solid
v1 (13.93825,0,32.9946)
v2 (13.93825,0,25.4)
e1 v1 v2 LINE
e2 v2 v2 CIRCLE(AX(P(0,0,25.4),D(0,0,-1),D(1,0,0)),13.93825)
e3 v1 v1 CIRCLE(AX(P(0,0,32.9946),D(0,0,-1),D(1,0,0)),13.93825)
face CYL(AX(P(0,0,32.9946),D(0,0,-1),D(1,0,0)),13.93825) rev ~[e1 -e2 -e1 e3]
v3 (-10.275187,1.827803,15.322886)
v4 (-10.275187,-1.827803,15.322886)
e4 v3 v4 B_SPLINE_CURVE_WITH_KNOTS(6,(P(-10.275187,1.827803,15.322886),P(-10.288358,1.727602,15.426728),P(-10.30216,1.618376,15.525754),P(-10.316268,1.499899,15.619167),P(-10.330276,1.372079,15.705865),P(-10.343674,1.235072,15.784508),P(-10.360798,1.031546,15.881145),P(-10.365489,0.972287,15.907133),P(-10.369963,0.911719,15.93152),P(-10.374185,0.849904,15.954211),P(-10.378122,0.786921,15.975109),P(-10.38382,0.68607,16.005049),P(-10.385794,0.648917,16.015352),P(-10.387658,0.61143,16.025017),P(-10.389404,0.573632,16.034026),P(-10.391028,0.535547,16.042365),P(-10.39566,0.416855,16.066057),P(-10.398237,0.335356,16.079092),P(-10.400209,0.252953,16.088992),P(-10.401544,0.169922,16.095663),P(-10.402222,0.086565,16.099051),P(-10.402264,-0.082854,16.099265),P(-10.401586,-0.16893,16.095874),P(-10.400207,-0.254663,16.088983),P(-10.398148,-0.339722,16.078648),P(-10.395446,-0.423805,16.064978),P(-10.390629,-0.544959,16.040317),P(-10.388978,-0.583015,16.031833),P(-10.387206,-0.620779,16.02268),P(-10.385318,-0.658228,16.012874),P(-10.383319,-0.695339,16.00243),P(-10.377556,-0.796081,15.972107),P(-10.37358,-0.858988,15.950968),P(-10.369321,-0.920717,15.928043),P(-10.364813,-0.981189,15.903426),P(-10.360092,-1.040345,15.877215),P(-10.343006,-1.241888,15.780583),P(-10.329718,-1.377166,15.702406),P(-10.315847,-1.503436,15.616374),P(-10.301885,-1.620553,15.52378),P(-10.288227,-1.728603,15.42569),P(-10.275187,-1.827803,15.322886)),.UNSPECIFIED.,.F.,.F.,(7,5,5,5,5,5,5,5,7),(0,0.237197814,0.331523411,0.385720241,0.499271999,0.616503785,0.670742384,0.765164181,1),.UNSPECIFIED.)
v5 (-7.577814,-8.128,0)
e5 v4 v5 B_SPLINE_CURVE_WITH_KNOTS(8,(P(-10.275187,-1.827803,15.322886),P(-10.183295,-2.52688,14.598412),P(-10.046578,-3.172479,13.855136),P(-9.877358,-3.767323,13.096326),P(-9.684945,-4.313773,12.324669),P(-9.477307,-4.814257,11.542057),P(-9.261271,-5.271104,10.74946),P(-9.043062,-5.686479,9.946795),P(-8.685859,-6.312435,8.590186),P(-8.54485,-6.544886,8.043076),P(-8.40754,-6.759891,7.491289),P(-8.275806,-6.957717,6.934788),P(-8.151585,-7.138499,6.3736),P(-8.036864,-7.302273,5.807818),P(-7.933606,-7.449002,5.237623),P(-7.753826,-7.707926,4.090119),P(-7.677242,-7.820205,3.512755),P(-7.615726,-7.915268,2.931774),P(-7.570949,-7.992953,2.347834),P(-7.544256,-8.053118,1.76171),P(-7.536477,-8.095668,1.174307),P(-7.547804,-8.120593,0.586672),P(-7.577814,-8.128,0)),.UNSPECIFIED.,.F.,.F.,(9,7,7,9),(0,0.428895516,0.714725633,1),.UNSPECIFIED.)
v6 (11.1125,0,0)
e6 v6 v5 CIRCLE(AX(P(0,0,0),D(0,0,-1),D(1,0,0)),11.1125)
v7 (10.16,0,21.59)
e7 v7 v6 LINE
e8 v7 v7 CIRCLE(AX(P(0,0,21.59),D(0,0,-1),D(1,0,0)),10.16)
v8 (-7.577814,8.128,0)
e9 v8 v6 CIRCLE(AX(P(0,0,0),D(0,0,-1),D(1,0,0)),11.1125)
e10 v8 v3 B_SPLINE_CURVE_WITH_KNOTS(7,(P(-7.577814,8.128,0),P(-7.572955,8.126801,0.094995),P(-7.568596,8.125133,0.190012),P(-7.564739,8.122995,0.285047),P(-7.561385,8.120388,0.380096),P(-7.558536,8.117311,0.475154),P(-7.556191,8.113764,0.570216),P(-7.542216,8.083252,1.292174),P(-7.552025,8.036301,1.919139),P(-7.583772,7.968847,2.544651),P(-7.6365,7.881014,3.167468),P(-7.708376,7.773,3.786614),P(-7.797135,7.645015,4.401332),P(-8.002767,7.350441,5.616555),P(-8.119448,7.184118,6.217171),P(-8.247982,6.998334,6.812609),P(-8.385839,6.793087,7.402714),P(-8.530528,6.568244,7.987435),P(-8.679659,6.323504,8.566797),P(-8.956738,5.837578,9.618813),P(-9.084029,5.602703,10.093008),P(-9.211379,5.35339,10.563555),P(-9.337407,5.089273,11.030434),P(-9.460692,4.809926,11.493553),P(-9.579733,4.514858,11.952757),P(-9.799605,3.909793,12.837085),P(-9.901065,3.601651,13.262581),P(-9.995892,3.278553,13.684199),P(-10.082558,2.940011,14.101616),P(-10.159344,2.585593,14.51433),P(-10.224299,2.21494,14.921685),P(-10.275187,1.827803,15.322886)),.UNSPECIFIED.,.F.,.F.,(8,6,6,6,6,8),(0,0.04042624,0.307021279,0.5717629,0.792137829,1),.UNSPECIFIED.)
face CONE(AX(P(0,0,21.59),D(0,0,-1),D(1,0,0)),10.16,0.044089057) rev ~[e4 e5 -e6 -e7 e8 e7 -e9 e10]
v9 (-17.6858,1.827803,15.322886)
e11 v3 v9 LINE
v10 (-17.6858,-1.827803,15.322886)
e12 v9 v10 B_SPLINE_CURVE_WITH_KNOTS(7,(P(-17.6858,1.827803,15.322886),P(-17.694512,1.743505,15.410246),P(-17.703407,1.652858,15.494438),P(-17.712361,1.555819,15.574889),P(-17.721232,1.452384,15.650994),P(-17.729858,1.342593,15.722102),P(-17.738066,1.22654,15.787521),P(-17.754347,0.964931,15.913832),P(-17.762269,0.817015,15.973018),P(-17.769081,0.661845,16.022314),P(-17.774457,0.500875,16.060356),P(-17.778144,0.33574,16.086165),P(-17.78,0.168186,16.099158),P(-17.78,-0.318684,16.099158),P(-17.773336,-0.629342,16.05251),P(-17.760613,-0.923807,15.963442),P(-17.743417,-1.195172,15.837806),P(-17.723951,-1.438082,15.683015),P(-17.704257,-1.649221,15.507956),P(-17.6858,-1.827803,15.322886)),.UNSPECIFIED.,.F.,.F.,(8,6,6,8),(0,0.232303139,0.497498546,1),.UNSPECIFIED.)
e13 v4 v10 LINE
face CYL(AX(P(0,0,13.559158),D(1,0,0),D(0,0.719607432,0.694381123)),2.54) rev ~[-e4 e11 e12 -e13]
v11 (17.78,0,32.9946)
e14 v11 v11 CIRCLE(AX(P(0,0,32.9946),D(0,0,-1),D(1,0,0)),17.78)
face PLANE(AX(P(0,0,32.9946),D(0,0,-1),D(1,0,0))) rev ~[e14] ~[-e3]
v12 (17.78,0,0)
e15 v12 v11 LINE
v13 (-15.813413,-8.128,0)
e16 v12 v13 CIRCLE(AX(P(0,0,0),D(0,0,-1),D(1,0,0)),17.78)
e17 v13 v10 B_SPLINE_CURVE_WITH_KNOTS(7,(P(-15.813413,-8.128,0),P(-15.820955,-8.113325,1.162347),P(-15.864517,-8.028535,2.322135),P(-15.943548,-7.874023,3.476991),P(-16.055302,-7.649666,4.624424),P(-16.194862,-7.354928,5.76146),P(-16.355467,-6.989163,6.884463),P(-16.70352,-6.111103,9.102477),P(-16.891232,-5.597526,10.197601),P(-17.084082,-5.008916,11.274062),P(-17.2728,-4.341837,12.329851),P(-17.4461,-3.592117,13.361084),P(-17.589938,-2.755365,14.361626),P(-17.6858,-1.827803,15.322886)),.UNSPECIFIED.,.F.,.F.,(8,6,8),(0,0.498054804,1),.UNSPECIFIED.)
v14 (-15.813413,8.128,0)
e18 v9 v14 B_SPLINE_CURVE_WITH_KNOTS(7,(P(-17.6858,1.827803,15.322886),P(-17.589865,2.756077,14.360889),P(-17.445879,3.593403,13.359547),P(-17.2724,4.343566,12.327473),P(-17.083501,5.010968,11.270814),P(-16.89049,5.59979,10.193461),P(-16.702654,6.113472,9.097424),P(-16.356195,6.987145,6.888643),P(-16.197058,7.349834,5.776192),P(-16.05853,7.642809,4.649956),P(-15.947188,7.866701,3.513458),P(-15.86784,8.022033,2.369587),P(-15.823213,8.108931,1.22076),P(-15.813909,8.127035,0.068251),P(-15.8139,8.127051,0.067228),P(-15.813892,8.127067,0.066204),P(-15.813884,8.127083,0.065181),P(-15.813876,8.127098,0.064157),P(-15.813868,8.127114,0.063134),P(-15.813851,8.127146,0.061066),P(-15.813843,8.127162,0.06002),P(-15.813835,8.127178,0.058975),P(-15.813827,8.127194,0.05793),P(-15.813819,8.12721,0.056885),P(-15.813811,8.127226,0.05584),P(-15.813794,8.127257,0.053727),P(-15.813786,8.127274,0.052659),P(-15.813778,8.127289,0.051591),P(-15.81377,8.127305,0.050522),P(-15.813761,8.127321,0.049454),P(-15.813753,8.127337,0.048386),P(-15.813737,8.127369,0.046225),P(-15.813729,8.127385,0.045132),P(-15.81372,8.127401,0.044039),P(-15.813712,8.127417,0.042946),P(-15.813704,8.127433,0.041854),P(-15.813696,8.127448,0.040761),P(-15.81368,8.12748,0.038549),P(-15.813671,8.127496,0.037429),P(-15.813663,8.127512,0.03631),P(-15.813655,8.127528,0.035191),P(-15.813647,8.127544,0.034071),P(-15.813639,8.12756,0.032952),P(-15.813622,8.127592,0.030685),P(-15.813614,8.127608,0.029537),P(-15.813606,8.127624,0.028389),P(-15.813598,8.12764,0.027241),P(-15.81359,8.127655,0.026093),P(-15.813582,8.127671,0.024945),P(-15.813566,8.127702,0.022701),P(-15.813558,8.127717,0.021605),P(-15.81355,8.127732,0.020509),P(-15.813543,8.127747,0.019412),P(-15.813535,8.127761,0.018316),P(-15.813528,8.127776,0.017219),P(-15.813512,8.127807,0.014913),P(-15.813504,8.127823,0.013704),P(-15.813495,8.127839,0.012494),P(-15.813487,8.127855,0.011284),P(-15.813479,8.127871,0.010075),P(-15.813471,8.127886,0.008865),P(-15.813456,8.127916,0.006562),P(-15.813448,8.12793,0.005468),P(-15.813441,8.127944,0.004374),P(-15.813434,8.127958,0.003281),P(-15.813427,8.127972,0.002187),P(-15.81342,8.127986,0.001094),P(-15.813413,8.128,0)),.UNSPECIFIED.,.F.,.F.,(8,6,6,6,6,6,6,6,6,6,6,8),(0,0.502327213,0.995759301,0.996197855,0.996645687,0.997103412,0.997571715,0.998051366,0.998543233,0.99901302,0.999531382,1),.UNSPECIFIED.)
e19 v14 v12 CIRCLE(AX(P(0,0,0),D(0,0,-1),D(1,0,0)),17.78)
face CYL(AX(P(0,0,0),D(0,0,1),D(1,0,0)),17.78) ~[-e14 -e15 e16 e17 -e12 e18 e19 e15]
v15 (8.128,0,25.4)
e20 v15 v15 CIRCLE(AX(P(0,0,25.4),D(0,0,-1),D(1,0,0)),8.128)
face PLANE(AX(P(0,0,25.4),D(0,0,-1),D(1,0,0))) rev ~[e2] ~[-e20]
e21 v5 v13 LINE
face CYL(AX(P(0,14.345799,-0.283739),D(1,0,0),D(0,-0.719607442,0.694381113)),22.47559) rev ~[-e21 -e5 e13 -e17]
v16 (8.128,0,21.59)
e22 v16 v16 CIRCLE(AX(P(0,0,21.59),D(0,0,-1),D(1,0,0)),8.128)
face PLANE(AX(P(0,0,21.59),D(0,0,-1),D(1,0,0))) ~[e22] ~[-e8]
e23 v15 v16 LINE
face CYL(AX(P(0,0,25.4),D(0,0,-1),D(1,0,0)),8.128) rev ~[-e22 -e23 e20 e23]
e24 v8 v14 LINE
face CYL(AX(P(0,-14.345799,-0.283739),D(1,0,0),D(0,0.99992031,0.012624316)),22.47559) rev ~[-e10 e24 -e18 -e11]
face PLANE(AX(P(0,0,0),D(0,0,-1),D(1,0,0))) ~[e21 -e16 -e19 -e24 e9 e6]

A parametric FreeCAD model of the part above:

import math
import FreeCAD as App
import Part
import Sketcher
from FreeCAD import Vector
Q = App.Units.Quantity

doc = App.newDocument("Part")
params = doc.addObject("Spreadsheet::Sheet", "Params")
for row, (alias, value) in enumerate([
    ("sketch1_width", "0.08 in"),
    ("sketch1_height", "0.15 in"),
    ("sketch1_height2", "1.299 in"),
    ("revolution_angle", "360 deg"),
    ("sketch2_radius", "0.1 in"),
    ("sketch2_width", "0.64 in"),
    ("pocket1_length", "1 in"),
], start=1):
    params.set(f"A{row}", alias)
    params.set(f"B{row}", "=" + value)
    params.setAlias(f"B{row}", alias)

body = doc.addObject("PartDesign::Body", "Body")

sketch1 = body.newObject("Sketcher::SketchObject", "Sketch")
sketch1.AttachmentSupport = (doc.getObject("XZ_Plane"), [""])
sketch1.MapMode = "FlatFace"
sketch1.addGeometry([
    Part.LineSegment(Vector(13.9, 25.4, 0), Vector(8.1, 25.4, 0)),
    Part.LineSegment(Vector(8.1, 25.4, 0), Vector(8.1, 21.6, 0)),
    Part.LineSegment(Vector(8.1, 21.6, 0), Vector(10.2, 21.6, 0)),
    Part.LineSegment(Vector(10.2, 21.6, 0), Vector(11.1, 0, 0)),
    Part.LineSegment(Vector(11.1, 0, 0), Vector(17.8, 0, 0)),
    Part.LineSegment(Vector(17.8, 0, 0), Vector(17.8, 33, 0)),
    Part.LineSegment(Vector(17.8, 33, 0), Vector(13.9, 33, 0)),
    Part.LineSegment(Vector(13.9, 33, 0), Vector(13.9, 25.4, 0)),
], False)
sketch1.addConstraint([
    Sketcher.Constraint("Coincident", 0, 2, 1, 1),
    Sketcher.Constraint("Coincident", 1, 2, 2, 1),
    Sketcher.Constraint("Coincident", 2, 2, 3, 1),
    Sketcher.Constraint("Coincident", 3, 2, 4, 1),
    Sketcher.Constraint("Coincident", 4, 2, 5, 1),
    Sketcher.Constraint("Coincident", 5, 2, 6, 1),
    Sketcher.Constraint("Coincident", 6, 2, 7, 1),
    Sketcher.Constraint("Coincident", 7, 2, 0, 1),
    Sketcher.Constraint("Horizontal", 0),
    Sketcher.Constraint("Vertical", 1),
    Sketcher.Constraint("Horizontal", 2),
    Sketcher.Constraint("Horizontal", 4),
    Sketcher.Constraint("Vertical", 5),
    Sketcher.Constraint("Horizontal", 6),
    Sketcher.Constraint("Vertical", 7),
    Sketcher.Constraint("PointOnObject", 3, 2, -1),
    Sketcher.Constraint("DistanceY", -1, 1, 0, 2, Q("1 in")),
    Sketcher.Constraint("DistanceX", 2, 1, 2, 2, Q("0.08 in")),
    Sketcher.Constraint("DistanceY", 1, 2, 1, 1, Q("0.15 in")),
    Sketcher.Constraint("DistanceX", -1, 1, 2, 2, Q("0.4 in")),
    Sketcher.Constraint("DistanceX", -1, 1, 4, 2, Q("0.7 in")),
    Sketcher.Constraint("DistanceY", 5, 1, 5, 2, Q("1.299 in")),
    Sketcher.Constraint("DistanceX", 4, 1, 4, 2, Q("0.2625 in")),
    Sketcher.Constraint("DistanceX", 0, 2, 0, 1, 5.81025),
])
sketch1.setExpression("Constraints[17]", "Params.sketch1_width")
sketch1.setExpression("Constraints[18]", "Params.sketch1_height")
sketch1.setExpression("Constraints[21]", "Params.sketch1_height2")
revolution = body.newObject("PartDesign::Revolution", "Revolution")
revolution.Profile = sketch1
revolution.ReferenceAxis = (sketch1, ["V_Axis"])
revolution.setExpression("Angle", "Params.revolution_angle")

sketch2 = body.newObject("Sketcher::SketchObject", "Sketch001")
sketch2.AttachmentSupport = (doc.getObject("YZ_Plane"), [""])
sketch2.MapMode = "FlatFace"
sketch2.addGeometry([
    Part.ArcOfCircle(Part.Circle(Vector(0, 13.6, 0), Vector(0, 0, 1), 2.5), math.radians(44), math.radians(136)),
    Part.ArcOfCircle(Part.Circle(Vector(14.3, -0.3, 0), Vector(0, 0, 1), 22.5), math.radians(136), math.radians(179)),
    Part.LineSegment(Vector(-8.1, 0, 0), Vector(8.1, 0, 0)),
    Part.ArcOfCircle(Part.Circle(Vector(-14.3, -0.3, 0), Vector(0, 0, 1), 22.5), math.radians(1), math.radians(44)),
], False)
sketch2.addConstraint([
    Sketcher.Constraint("Tangent", 0, 2, 1, 1),
    Sketcher.Constraint("Coincident", 1, 2, 2, 1),
    Sketcher.Constraint("Coincident", 2, 2, 3, 1),
    Sketcher.Constraint("Tangent", 3, 2, 0, 1),
    Sketcher.Constraint("Horizontal", 2),
    Sketcher.Constraint("Equal", 1, 3),
    Sketcher.Constraint("Symmetric", 1, 2, 2, 2, -1, 1),
    Sketcher.Constraint("PointOnObject", 0, 3, -2),
    Sketcher.Constraint("Radius", 0, Q("0.1 in")),
    Sketcher.Constraint("DistanceX", 2, 1, 2, 2, Q("0.64 in")),
    Sketcher.Constraint("Radius", 1, 22.47559),
    Sketcher.Constraint("DistanceX", -1, 1, 1, 3, 14.345799),
])
sketch2.setExpression("Constraints[8]", "Params.sketch2_radius")
sketch2.setExpression("Constraints[9]", "Params.sketch2_width")
pocket1 = body.newObject("PartDesign::Pocket", "Pocket")
pocket1.Profile = sketch2
pocket1.setExpression("Length", "Params.pocket1_length")

doc.recompute()
